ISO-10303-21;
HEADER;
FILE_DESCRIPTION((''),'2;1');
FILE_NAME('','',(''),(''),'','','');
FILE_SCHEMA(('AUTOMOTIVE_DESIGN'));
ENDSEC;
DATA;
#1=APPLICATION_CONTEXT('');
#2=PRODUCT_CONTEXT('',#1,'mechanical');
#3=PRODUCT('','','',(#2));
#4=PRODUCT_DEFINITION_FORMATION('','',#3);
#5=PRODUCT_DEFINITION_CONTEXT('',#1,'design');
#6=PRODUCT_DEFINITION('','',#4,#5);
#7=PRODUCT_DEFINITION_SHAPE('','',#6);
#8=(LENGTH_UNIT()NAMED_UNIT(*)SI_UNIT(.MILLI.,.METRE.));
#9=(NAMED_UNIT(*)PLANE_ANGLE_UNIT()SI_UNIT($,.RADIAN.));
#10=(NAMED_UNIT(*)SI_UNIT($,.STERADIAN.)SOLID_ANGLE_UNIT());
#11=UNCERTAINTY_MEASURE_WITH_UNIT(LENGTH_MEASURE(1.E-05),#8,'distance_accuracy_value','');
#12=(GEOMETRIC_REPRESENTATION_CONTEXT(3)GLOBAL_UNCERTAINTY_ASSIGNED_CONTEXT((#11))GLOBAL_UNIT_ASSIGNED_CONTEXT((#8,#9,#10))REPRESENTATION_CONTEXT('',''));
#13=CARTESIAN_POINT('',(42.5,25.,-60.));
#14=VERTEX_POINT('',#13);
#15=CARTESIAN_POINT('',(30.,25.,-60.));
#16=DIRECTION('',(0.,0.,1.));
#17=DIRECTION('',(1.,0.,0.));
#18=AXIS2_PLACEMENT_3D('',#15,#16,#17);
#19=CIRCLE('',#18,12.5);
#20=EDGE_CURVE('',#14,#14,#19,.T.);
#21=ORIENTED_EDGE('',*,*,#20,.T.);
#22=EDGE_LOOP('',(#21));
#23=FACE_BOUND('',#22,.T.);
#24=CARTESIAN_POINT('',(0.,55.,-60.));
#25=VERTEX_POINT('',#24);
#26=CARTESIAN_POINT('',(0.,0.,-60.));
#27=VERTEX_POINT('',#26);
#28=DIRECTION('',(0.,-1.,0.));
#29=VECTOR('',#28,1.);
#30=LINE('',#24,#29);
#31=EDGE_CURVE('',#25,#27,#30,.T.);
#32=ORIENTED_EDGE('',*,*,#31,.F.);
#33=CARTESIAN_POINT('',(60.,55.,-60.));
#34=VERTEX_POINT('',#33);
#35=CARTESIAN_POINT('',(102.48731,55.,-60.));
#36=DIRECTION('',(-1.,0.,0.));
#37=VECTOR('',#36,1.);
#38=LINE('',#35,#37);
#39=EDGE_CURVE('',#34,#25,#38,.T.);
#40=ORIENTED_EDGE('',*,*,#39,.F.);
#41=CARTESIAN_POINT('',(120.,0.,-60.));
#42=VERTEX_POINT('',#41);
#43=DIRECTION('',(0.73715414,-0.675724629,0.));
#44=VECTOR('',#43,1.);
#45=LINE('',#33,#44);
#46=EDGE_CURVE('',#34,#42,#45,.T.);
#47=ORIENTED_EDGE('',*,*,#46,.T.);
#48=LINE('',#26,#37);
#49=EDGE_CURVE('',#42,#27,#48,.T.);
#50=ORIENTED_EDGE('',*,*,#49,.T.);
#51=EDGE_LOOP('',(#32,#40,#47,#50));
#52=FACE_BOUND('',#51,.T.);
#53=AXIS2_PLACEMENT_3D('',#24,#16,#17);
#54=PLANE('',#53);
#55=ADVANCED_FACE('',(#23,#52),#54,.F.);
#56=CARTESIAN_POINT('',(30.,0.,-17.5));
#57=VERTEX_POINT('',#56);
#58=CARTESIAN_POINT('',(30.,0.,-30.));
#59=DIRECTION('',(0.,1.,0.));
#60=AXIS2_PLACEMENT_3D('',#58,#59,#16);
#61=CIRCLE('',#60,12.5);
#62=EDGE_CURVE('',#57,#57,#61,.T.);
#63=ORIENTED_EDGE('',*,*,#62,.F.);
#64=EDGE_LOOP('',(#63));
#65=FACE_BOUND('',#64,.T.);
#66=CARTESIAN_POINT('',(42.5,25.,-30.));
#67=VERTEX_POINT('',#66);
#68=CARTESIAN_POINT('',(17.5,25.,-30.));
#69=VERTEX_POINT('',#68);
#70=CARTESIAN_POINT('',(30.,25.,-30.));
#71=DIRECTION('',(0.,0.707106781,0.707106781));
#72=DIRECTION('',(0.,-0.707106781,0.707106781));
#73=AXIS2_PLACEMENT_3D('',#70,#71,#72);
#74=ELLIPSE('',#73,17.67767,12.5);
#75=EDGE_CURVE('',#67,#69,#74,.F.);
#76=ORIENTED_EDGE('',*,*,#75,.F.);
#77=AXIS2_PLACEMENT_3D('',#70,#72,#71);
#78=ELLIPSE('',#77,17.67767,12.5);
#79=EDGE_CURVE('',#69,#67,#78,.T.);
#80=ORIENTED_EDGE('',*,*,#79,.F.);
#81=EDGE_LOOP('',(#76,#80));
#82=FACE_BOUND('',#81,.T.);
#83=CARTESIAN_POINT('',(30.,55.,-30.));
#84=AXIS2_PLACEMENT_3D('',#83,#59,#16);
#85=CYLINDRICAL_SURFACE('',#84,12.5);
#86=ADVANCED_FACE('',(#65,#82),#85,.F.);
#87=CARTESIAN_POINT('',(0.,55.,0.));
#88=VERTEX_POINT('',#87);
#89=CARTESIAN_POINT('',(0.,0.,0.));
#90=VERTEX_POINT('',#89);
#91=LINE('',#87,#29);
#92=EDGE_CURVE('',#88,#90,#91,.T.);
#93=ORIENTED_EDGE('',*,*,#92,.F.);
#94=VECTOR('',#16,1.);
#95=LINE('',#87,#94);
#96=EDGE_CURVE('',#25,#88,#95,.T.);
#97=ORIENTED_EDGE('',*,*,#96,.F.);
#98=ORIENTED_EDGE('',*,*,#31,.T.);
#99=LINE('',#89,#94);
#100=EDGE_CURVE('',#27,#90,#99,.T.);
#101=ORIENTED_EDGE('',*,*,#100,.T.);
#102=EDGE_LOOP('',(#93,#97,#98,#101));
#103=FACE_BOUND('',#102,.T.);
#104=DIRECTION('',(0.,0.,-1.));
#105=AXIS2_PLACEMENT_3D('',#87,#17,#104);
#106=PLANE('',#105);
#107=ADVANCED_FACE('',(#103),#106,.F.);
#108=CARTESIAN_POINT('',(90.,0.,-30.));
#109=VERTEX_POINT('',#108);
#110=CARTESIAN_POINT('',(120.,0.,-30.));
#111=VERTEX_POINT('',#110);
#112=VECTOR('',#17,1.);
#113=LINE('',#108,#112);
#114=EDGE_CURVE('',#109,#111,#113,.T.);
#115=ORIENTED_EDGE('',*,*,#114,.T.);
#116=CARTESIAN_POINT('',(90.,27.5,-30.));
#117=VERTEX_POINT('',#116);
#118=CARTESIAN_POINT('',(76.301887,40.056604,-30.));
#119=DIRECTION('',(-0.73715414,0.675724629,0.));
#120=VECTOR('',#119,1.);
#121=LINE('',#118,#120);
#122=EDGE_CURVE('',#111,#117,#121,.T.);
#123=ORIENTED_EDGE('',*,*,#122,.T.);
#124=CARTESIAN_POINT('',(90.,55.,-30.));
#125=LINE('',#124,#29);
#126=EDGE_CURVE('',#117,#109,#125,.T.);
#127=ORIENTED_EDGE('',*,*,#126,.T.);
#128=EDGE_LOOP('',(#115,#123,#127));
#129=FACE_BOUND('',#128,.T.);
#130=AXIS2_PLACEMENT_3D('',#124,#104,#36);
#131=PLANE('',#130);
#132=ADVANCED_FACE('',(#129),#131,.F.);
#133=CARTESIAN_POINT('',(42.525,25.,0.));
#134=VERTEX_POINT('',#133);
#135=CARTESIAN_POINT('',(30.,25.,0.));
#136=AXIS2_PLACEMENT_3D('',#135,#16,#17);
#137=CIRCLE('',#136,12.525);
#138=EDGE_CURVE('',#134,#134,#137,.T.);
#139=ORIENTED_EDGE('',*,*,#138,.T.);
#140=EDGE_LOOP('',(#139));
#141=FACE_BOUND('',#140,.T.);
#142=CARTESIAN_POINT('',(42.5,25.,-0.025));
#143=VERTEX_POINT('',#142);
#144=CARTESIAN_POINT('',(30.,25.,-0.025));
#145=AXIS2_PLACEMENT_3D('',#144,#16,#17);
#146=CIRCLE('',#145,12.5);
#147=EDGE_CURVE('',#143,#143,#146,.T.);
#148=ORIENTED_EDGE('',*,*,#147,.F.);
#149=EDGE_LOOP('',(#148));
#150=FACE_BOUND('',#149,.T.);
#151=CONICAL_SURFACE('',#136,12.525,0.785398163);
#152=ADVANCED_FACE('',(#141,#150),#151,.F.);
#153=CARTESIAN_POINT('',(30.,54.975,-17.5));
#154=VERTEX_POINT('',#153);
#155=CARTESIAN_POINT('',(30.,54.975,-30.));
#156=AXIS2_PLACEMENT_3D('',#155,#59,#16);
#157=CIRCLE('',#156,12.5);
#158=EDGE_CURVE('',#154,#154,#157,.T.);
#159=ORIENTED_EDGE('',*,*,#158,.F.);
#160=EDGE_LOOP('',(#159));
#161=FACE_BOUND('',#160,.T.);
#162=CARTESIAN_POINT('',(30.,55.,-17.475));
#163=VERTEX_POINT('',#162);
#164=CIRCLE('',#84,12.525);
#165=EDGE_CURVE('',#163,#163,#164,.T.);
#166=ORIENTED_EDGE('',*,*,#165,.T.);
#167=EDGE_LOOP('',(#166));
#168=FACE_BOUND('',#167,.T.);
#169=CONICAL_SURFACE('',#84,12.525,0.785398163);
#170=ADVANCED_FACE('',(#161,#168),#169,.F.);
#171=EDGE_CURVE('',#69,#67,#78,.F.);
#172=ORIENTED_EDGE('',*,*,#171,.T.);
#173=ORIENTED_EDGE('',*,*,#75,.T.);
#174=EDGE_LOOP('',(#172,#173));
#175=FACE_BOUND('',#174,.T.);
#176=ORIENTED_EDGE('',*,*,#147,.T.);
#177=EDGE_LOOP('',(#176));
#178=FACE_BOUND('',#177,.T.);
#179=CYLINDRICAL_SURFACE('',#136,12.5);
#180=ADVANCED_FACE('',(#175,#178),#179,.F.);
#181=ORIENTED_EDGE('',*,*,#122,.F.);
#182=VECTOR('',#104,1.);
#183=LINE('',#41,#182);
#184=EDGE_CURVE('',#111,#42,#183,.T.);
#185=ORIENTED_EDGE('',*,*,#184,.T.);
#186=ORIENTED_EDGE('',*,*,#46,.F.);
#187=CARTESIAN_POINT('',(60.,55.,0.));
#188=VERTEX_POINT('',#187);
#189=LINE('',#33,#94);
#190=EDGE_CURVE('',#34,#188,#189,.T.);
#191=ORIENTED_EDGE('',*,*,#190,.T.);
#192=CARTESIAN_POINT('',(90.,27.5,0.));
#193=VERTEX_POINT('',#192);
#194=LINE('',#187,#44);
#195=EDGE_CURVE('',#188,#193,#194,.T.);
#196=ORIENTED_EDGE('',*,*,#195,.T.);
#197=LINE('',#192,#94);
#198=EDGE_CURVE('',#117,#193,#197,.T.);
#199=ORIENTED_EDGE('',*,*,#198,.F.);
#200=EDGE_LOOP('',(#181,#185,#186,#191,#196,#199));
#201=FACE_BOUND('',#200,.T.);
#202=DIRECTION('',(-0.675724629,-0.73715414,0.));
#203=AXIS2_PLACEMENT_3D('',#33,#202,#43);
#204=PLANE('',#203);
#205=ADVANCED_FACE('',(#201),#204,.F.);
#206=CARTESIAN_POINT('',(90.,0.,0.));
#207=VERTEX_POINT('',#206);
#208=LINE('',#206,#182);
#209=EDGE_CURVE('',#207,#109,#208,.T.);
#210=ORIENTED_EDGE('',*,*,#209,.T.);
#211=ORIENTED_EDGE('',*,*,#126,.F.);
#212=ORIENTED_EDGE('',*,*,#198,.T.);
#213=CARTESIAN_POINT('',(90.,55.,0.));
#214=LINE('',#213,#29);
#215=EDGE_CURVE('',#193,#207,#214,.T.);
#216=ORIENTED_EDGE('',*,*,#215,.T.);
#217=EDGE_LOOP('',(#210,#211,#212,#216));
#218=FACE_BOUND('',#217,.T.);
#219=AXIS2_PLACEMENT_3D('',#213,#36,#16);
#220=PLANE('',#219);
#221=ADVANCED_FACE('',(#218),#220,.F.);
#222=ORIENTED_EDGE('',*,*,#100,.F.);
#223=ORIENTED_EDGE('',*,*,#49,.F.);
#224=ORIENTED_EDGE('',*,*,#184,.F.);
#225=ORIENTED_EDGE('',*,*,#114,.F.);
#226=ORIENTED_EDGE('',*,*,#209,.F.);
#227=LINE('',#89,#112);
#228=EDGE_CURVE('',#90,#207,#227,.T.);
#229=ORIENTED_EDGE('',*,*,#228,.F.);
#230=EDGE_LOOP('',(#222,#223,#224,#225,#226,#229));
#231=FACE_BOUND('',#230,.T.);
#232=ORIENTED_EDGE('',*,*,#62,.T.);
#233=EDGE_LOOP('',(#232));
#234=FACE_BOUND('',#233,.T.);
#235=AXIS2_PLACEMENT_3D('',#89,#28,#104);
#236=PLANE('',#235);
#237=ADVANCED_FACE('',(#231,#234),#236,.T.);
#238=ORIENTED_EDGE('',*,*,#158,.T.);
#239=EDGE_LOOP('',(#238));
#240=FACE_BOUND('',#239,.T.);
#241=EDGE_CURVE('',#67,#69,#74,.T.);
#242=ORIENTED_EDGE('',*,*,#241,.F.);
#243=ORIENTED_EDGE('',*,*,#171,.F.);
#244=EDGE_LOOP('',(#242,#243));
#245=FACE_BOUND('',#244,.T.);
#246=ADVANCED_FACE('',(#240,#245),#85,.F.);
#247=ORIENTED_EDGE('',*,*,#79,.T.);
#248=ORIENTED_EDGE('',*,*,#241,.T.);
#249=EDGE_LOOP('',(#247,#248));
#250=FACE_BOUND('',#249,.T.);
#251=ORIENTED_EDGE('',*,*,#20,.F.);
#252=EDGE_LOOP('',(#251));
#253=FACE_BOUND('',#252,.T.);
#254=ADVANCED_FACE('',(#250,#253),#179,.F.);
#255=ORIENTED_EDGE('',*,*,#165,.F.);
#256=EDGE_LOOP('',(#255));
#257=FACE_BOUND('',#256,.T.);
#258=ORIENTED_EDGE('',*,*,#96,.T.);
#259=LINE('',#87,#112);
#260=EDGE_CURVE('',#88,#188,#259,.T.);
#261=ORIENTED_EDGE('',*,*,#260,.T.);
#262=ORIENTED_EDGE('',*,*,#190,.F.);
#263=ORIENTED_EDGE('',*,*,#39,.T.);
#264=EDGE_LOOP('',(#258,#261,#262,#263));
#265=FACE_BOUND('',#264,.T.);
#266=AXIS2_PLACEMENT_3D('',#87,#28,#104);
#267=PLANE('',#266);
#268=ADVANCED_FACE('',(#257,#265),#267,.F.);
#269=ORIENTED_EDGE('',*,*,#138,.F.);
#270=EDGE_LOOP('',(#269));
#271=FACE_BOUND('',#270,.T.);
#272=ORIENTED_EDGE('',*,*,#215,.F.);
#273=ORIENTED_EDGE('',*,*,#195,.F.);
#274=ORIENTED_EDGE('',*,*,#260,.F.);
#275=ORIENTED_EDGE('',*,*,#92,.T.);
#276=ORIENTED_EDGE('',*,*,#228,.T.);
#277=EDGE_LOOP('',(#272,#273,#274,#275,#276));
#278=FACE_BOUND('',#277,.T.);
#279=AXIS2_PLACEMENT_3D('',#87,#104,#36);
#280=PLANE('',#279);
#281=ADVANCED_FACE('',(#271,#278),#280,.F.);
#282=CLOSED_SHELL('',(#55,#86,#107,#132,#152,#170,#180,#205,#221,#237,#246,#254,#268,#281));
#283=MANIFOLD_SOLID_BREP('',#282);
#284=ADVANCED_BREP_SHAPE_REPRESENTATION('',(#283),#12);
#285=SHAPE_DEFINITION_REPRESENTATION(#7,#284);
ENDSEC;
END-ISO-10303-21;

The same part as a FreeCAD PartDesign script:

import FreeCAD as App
import Part
import Sketcher
Q = App.Units.Quantity


def add_polygon(sketch, points):
    """Adds a closed chain of lines whose ends are joined by coincident constraints."""
    first, n = sketch.GeometryCount, len(points)
    for a, b in zip(points, points[1:] + points[:1]):
        sketch.addGeometry(Part.LineSegment(App.Vector(*a, 0), App.Vector(*b, 0)), False)
    for i in range(n):
        sketch.addConstraint(Sketcher.Constraint("Coincident", first + i, 2, first + (i + 1) % n, 1))

doc = App.newDocument("Part")
body = doc.addObject("PartDesign::Body", "Body")

# Sketch on XZ plane
sketch1 = body.newObject("Sketcher::SketchObject", "Sketch")
sketch1.AttachmentSupport = (doc.getObject("XZ_Plane"), [""])
sketch1.MapMode = "FlatFace"
add_polygon(sketch1, [(0, 0), (90, 0), (90, -30), (120, -30), (120, -60), (0, -60)])  # lines 0-5
sketch1.addConstraint([
    Sketcher.Constraint("Horizontal", 0),
    Sketcher.Constraint("Vertical", 1),
    Sketcher.Constraint("Horizontal", 2),
    Sketcher.Constraint("Vertical", 3),
    Sketcher.Constraint("Horizontal", 4),
    Sketcher.Constraint("Vertical", 5),
    Sketcher.Constraint("Coincident", 5, 2, -1, 1),
    Sketcher.Constraint("Equal", 2, 1),
    Sketcher.Constraint("Equal", 1, 3),
    Sketcher.Constraint("DistanceX", 0, 1, 0, 2, Q("90 mm")),
    Sketcher.Constraint("DistanceX", 2, 1, 2, 2, Q("30 mm")),
])
pad1 = body.newObject("PartDesign::Pad", "Pad")
pad1.Profile = sketch1
pad1.Length = 55
pad1.Reversed = True

# Sketch on XY plane
sketch2 = body.newObject("Sketcher::SketchObject", "Sketch001")
sketch2.AttachmentSupport = (doc.getObject("XY_Plane"), [""])
sketch2.MapMode = "FlatFace"
add_polygon(sketch2, [(60, 55), (120, 0), (120, 55)])  # lines 0-2
sketch2.addConstraint([
    Sketcher.Constraint("Vertical", 1),
    Sketcher.Constraint("Horizontal", 2),
    Sketcher.Constraint("PointOnObject", 0, 2, -1),
    Sketcher.Constraint("DistanceX", 2, 2, 2, 1, Q("60 mm")),
    Sketcher.Constraint("DistanceY", 1, 1, 1, 2, Q("55 mm")),
    Sketcher.Constraint("DistanceX", -1, 1, 0, 2, Q("120 mm")),
])
pocket1 = body.newObject("PartDesign::Pocket", "Pocket")
pocket1.Profile = sketch2
pocket1.Type = "ThroughAll"

# Sketch on XY plane
sketch3 = body.newObject("Sketcher::SketchObject", "Sketch002")
sketch3.AttachmentSupport = (doc.getObject("XY_Plane"), [""])
sketch3.MapMode = "FlatFace"
sketch3.addGeometry(Part.Circle(App.Vector(30, 25, 0), App.Vector(0, 0, 1), 12), False)
sketch3.addConstraint([
    Sketcher.Constraint("Diameter", 0, Q("25 mm")),
    Sketcher.Constraint("DistanceX", -1, 1, 0, 3, Q("30 mm")),
    Sketcher.Constraint("DistanceY", -1, 1, 0, 3, Q("25 mm")),
])
doc.recompute()
hole = body.newObject("PartDesign::Hole", "Hole")
hole.Profile = sketch3
hole.ThreadType = "None"
hole.Diameter = 25
hole.DepthType = "ThroughAll"
hole.HoleCutType = "Countersink"
hole.HoleCutDiameter = 25.05
hole.HoleCutCountersinkAngle = 90

# Sketch on XZ plane
sketch4 = body.newObject("Sketcher::SketchObject", "Sketch003")
sketch4.AttachmentSupport = (doc.getObject("XZ_Plane"), [""])
sketch4.MapMode = "FlatFace"
sketch4.AttachmentOffset = App.Placement(App.Vector(0, 0, -55), App.Rotation())
sketch4.addGeometry(Part.Circle(App.Vector(30, -30, 0), App.Vector(0, 0, 1), 12), False)
sketch4.addConstraint([
    Sketcher.Constraint("Diameter", 0, Q("25 mm")),
    Sketcher.Constraint("DistanceX", -1, 1, 0, 3, Q("30 mm")),
    Sketcher.Constraint("DistanceY", 0, 3, -1, 1, Q("30 mm")),
])
doc.recompute()
hole2 = body.newObject("PartDesign::Hole", "Hole001")
hole2.Profile = sketch4
hole2.ThreadType = "None"
hole2.Diameter = 25
hole2.DepthType = "ThroughAll"
hole2.HoleCutType = "Countersink"
hole2.HoleCutDiameter = 25.05
hole2.HoleCutCountersinkAngle = 90
hole2.Reversed = True

doc.recompute()
